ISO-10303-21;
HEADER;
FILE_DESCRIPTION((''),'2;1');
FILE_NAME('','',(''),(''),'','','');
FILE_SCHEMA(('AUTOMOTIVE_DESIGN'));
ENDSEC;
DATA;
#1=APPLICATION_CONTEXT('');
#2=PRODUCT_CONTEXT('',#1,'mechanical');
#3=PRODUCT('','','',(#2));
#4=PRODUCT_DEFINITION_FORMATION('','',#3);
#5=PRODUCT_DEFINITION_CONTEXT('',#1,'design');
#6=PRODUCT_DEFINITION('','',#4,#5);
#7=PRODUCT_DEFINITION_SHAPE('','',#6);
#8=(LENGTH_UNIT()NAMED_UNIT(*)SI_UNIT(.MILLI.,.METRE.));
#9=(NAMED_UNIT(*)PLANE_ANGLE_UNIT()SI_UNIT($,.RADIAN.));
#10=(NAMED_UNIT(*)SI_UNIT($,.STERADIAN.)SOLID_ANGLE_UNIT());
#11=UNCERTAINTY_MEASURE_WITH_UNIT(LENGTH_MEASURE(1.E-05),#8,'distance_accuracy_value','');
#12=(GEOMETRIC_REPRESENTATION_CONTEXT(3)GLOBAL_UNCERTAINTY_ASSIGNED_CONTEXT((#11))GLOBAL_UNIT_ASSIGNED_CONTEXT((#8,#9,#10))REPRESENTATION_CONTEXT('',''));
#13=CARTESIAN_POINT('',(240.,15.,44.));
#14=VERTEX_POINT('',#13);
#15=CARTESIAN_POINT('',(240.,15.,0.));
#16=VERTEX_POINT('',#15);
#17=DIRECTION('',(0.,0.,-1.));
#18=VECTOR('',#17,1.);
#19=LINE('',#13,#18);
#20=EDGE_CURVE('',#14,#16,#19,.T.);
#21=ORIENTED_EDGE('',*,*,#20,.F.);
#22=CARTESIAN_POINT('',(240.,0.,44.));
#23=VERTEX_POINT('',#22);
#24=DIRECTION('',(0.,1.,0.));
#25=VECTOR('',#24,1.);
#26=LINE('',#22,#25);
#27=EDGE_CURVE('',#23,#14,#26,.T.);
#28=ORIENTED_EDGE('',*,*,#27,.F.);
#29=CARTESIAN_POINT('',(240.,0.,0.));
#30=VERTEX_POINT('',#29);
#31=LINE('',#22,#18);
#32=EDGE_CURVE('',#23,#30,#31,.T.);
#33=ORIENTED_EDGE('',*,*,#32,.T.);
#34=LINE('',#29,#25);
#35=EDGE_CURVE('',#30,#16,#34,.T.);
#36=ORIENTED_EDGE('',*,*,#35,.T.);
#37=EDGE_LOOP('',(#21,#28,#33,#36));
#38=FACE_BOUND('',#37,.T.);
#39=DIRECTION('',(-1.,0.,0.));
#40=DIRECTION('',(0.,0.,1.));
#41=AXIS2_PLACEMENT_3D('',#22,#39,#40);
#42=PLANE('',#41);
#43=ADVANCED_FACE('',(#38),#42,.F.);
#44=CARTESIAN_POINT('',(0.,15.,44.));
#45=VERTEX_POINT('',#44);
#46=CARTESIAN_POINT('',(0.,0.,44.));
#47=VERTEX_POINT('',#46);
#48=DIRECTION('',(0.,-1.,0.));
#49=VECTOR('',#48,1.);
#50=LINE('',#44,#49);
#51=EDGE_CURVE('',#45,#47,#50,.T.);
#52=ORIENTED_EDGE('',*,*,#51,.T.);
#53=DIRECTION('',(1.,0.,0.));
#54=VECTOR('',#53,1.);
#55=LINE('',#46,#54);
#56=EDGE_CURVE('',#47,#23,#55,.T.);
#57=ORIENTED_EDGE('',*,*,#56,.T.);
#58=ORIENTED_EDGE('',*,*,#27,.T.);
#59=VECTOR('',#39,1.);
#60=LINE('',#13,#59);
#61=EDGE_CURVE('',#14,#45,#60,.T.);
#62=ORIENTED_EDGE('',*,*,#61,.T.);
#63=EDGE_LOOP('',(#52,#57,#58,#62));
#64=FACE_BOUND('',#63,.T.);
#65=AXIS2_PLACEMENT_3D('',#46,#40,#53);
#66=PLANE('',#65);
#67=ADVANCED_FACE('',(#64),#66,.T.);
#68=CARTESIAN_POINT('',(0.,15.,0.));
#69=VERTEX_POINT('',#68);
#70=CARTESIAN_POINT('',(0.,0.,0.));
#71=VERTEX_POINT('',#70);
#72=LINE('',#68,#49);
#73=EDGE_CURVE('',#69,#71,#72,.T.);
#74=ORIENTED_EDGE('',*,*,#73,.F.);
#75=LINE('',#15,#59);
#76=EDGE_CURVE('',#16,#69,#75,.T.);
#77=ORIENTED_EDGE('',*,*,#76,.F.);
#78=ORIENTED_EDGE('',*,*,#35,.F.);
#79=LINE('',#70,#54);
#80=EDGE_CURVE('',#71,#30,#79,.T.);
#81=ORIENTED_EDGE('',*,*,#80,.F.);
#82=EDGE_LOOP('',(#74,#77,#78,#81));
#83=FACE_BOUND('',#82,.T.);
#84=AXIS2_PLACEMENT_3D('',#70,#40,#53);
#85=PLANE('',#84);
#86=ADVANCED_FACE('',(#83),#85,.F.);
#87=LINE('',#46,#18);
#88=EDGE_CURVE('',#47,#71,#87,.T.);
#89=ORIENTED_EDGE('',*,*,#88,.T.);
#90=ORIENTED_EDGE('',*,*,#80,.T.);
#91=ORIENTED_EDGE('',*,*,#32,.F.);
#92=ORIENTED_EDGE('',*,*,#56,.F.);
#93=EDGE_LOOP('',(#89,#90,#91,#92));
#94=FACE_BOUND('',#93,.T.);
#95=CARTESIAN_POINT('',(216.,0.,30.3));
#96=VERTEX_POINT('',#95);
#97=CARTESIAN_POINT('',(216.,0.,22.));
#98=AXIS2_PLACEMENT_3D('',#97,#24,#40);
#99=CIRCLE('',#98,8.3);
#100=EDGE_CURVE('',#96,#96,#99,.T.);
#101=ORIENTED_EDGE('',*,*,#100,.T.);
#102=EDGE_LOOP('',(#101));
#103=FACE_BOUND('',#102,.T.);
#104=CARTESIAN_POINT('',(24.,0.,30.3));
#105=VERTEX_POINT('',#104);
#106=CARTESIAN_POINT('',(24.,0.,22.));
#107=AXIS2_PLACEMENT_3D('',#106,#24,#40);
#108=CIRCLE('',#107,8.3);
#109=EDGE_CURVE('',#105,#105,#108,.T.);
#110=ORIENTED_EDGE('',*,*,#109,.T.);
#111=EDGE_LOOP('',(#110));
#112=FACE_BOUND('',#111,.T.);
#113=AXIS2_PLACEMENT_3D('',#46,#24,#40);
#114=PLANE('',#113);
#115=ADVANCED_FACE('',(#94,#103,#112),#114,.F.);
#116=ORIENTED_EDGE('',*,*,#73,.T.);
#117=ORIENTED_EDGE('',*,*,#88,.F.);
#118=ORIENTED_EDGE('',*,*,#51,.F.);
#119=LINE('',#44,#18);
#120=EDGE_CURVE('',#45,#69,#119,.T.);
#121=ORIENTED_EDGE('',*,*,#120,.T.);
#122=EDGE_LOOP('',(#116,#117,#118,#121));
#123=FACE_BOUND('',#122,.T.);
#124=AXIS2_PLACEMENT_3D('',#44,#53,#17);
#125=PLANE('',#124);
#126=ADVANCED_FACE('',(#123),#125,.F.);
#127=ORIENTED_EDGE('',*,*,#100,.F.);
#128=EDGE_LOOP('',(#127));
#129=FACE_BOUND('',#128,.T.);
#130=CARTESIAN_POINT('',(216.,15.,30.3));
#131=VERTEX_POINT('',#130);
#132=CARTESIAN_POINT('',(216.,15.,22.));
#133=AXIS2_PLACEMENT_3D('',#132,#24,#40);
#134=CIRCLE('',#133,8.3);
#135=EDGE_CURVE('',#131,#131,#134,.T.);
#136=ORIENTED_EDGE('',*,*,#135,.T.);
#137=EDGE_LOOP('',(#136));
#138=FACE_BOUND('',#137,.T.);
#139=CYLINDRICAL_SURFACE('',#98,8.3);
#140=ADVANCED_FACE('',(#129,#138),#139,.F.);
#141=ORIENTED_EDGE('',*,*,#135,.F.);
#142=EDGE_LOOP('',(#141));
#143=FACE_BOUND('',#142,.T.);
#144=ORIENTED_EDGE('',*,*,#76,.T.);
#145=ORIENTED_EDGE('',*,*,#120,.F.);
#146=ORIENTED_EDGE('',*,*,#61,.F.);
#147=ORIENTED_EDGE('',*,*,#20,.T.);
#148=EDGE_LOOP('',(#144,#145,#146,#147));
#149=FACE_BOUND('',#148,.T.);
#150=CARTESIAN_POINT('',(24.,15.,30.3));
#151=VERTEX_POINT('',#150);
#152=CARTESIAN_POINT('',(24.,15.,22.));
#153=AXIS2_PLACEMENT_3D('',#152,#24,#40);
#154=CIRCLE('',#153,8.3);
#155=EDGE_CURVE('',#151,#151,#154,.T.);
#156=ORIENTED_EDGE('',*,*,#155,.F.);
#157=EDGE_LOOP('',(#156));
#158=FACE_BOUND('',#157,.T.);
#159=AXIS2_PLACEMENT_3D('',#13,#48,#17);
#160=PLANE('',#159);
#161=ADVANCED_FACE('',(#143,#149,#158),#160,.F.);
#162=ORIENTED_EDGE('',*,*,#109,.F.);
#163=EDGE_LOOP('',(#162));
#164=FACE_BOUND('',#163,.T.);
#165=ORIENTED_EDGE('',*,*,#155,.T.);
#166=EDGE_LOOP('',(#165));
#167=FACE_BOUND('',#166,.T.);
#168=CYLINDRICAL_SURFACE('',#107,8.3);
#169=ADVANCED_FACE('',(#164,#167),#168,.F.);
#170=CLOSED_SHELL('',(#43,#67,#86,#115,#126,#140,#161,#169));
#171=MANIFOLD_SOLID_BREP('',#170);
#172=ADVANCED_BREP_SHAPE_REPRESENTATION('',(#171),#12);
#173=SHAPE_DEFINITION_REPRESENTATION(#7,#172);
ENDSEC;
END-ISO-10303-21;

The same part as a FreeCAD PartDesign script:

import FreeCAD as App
import Part
import Sketcher


def add_polygon(sketch, points):
    """Adds a closed chain of lines whose ends are joined by coincident constraints."""
    first, n = sketch.GeometryCount, len(points)
    for a, b in zip(points, points[1:] + points[:1]):
        sketch.addGeometry(Part.LineSegment(App.Vector(*a, 0), App.Vector(*b, 0)), False)
    for i in range(n):
        sketch.addConstraint(Sketcher.Constraint("Coincident", first + i, 2, first + (i + 1) % n, 1))

doc = App.newDocument("Part")
body = doc.addObject("PartDesign::Body", "Body")

sketch1 = body.newObject("Sketcher::SketchObject", "Sketch")
sketch1.AttachmentSupport = (doc.getObject("XY_Plane"), [""])
sketch1.MapMode = "FlatFace"
add_polygon(sketch1, [(0, 15), (0, 0), (240, 0), (240, 15)])
sketch1.addConstraint([
    Sketcher.Constraint("Vertical", 0),
    Sketcher.Constraint("Horizontal", 1),
    Sketcher.Constraint("Vertical", 2),
    Sketcher.Constraint("Horizontal", 3),
    Sketcher.Constraint("Coincident", 0, 2, -1, 1),
    Sketcher.Constraint("DistanceX", 1, 1, 1, 2, 240.0),
    Sketcher.Constraint("DistanceY", 0, 2, 0, 1, 15.0),
])
pad1 = body.newObject("PartDesign::Pad", "Pad")
pad1.Profile = sketch1
pad1.Length = 44

sketch2 = body.newObject("Sketcher::SketchObject", "Sketch001")
sketch2.AttachmentSupport = (doc.getObject("XZ_Plane"), [""])
sketch2.MapMode = "FlatFace"
sketch2.AttachmentOffset = App.Placement(App.Vector(0, 0, -15), App.Rotation())
sketch2.addGeometry(Part.Circle(App.Vector(24, 22, 0), App.Vector(0, 0, 1), 8), False)
sketch2.addConstraint([
    Sketcher.Constraint("Diameter", 0, 16.6),
    Sketcher.Constraint("DistanceX", -1, 1, 0, 3, 24.0),
    Sketcher.Constraint("DistanceY", -1, 1, 0, 3, 22.0),
])
pocket1 = body.newObject("PartDesign::Pocket", "Pocket")
pocket1.Profile = sketch2
pocket1.Type = "ThroughAll"
pocket1.Reversed = True

sketch3 = body.newObject("Sketcher::SketchObject", "Sketch002")
sketch3.AttachmentSupport = (doc.getObject("XZ_Plane"), [""])
sketch3.MapMode = "FlatFace"
sketch3.AttachmentOffset = App.Placement(App.Vector(0, 0, -15), App.Rotation())
sketch3.addGeometry(Part.Circle(App.Vector(216, 22, 0), App.Vector(0, 0, 1), 8), False)
sketch3.addConstraint([
    Sketcher.Constraint("Diameter", 0, 16.6),
    Sketcher.Constraint("DistanceX", -1, 1, 0, 3, 216.0),
    Sketcher.Constraint("DistanceY", -1, 1, 0, 3, 22.0),
])
pocket2 = body.newObject("PartDesign::Pocket", "Pocket001")
pocket2.Profile = sketch3
pocket2.Type = "ThroughAll"
pocket2.Reversed = True

doc.recompute()
